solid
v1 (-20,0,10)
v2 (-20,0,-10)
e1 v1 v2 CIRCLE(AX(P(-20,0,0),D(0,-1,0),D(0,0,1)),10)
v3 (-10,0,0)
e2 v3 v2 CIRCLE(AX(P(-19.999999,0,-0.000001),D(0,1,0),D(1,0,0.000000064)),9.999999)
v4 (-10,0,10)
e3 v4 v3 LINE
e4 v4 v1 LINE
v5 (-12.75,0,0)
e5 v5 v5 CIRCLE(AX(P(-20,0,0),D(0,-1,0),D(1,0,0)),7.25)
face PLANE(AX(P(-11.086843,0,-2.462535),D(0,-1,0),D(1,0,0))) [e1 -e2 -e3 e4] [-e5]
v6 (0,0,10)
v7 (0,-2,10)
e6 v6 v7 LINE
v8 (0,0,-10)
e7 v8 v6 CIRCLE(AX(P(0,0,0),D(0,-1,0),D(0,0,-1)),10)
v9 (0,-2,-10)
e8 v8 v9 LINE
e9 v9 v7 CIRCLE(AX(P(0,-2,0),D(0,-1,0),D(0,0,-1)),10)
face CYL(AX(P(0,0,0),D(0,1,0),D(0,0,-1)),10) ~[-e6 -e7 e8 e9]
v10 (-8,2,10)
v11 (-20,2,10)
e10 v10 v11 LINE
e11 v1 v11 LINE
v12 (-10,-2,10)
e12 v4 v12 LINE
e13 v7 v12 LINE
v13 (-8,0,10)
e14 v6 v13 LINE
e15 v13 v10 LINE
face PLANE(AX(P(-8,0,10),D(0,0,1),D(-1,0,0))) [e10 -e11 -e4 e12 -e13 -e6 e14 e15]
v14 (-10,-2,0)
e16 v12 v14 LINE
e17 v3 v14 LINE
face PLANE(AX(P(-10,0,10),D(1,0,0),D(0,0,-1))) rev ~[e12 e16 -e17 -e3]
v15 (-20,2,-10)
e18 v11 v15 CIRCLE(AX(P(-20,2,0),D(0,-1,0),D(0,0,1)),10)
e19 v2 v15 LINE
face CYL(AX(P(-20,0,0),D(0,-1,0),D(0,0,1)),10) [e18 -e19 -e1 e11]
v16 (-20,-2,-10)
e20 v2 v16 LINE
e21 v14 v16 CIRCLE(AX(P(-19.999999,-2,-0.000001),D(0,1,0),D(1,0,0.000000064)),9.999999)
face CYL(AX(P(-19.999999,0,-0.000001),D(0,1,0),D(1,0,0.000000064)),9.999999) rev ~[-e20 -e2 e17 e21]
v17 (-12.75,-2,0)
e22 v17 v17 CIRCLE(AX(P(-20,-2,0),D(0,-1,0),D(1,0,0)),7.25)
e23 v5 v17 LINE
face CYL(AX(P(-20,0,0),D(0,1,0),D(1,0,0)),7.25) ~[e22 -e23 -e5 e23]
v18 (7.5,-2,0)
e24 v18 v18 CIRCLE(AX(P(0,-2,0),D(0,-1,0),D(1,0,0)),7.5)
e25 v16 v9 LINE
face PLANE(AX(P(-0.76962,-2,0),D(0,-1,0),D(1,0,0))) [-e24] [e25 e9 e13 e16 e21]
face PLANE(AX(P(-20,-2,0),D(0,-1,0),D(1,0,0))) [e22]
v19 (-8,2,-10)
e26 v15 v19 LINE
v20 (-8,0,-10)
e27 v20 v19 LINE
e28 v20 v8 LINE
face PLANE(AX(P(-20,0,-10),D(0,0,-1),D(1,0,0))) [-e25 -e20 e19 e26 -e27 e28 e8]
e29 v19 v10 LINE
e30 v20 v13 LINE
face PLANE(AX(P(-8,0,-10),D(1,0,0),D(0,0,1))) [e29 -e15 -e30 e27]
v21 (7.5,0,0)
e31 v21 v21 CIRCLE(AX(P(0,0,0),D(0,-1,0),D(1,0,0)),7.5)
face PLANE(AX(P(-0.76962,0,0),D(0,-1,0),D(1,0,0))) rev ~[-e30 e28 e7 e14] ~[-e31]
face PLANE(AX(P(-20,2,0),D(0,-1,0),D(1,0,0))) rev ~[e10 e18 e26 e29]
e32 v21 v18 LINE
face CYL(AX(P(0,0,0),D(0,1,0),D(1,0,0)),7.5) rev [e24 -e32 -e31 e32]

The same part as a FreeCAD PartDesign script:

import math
import FreeCAD as App
import Part
import Sketcher

doc = App.newDocument("Part")
params = doc.addObject("Spreadsheet::Sheet", "Params")
for row, (alias, value) in enumerate([
    ("sketch1_diameter", "15 mm"),
    ("sketch1_radius", "9.999999 mm"),
    ("pad1_length", "2 mm"),
    ("sketch2_radius", "10 mm"),
    ("sketch2_diameter", "14.5 mm"),
    ("sketch2_width", "12 mm"),
    ("pad2_length", "2 mm"),
    ("sketch3_diameter", "14.5 mm"),
    ("pad3_length", "2 mm"),
    ("pad3_length2", "2 mm"),
], start=1):
    params.set(f"A{row}", alias)
    params.set(f"B{row}", "=" + value)
    params.setAlias(f"B{row}", alias)

body = doc.addObject("PartDesign::Body", "Body")

sketch1 = body.newObject("Sketcher::SketchObject", "Sketch")
sketch1.AttachmentSupport = (doc.getObject("XZ_Plane"), [""])
sketch1.MapMode = "FlatFace"
sketch1.addGeometry(Part.LineSegment(App.Vector(0, 10, 0), App.Vector(-10, 10, 0)), False)
sketch1.addGeometry(Part.LineSegment(App.Vector(-10, 10, 0), App.Vector(-10, 0, 0)), False)
sketch1.addGeometry(Part.ArcOfCircle(Part.Circle(App.Vector(-19.999999, -0.000001, 0), App.Vector(0, 0, 1), 9.999999), math.radians(-90.000004), math.radians(0.000004)), False)
sketch1.addGeometry(Part.LineSegment(App.Vector(-20, -10, 0), App.Vector(0, -10, 0)), False)
sketch1.addGeometry(Part.ArcOfCircle(Part.Circle(App.Vector(0, 0, 0), App.Vector(0, 0, 1), 10), math.radians(-90), math.radians(90)), False)
sketch1.addGeometry(Part.Circle(App.Vector(0, 0, 0), App.Vector(0, 0, 1), 7.5), False)
sketch1.addConstraint(Sketcher.Constraint("Coincident", 0, 2, 1, 1))
sketch1.addConstraint(Sketcher.Constraint("Tangent", 1, 2, 2, 2))
sketch1.addConstraint(Sketcher.Constraint("Tangent", 2, 1, 3, 1))
sketch1.addConstraint(Sketcher.Constraint("Tangent", 3, 2, 4, 1))
sketch1.addConstraint(Sketcher.Constraint("Tangent", 4, 2, 0, 1))
sketch1.addConstraint(Sketcher.Constraint("Horizontal", 0))
sketch1.addConstraint(Sketcher.Constraint("Vertical", 1))
sketch1.addConstraint(Sketcher.Constraint("Horizontal", 3))
sketch1.addConstraint(Sketcher.Constraint("Coincident", 4, 3, -1, 1))
sketch1.addConstraint(Sketcher.Constraint("Coincident", 5, 3, -1, 1))
sketch1.addConstraint(Sketcher.Constraint("Equal", 2, 4))
sketch1.addConstraint(Sketcher.Constraint("Equal", 0, 1))
sketch1.addConstraint(Sketcher.Constraint("Diameter", 5, 15.0))
sketch1.addConstraint(Sketcher.Constraint("Radius", 2, 9.999999))
sketch1.setExpression("Constraints[12]", "Params.sketch1_diameter")
sketch1.setExpression("Constraints[13]", "Params.sketch1_radius")
pad1 = body.newObject("PartDesign::Pad", "Pad")
pad1.Profile = sketch1
pad1.setExpression("Length", "Params.pad1_length")

sketch2 = body.newObject("Sketcher::SketchObject", "Sketch001")
sketch2.AttachmentSupport = (doc.getObject("XZ_Plane"), [""])
sketch2.MapMode = "FlatFace"
sketch2.addGeometry(Part.LineSegment(App.Vector(-20, -10, 0), App.Vector(-8, -10, 0)), False)
sketch2.addGeometry(Part.LineSegment(App.Vector(-8, -10, 0), App.Vector(-8, 10, 0)), False)
sketch2.addGeometry(Part.LineSegment(App.Vector(-8, 10, 0), App.Vector(-20, 10, 0)), False)
sketch2.addGeometry(Part.ArcOfCircle(Part.Circle(App.Vector(-20, 0, 0), App.Vector(0, 0, 1), 10), math.radians(90), math.radians(270)), False)
sketch2.addGeometry(Part.Circle(App.Vector(-20, 0, 0), App.Vector(0, 0, 1), 7.25), False)
sketch2.addConstraint(Sketcher.Constraint("Coincident", 0, 2, 1, 1))
sketch2.addConstraint(Sketcher.Constraint("Coincident", 1, 2, 2, 1))
sketch2.addConstraint(Sketcher.Constraint("Tangent", 2, 2, 3, 1))
sketch2.addConstraint(Sketcher.Constraint("Tangent", 3, 2, 0, 1))
sketch2.addConstraint(Sketcher.Constraint("Horizontal", 0))
sketch2.addConstraint(Sketcher.Constraint("Vertical", 1))
sketch2.addConstraint(Sketcher.Constraint("Horizontal", 2))
sketch2.addConstraint(Sketcher.Constraint("Coincident", 4, 3, 3, 3))
sketch2.addConstraint(Sketcher.Constraint("PointOnObject", 3, 3, -1))
sketch2.addConstraint(Sketcher.Constraint("Radius", 3, 10.0))
sketch2.addConstraint(Sketcher.Constraint("Diameter", 4, 14.5))
sketch2.addConstraint(Sketcher.Constraint("DistanceX", 0, 1, 0, 2, 12.0))
sketch2.addConstraint(Sketcher.Constraint("DistanceX", 3, 3, -1, 1, 20.0))
sketch2.setExpression("Constraints[9]", "Params.sketch2_radius")
sketch2.setExpression("Constraints[10]", "Params.sketch2_diameter")
sketch2.setExpression("Constraints[11]", "Params.sketch2_width")
pad2 = body.newObject("PartDesign::Pad", "Pad001")
pad2.Profile = sketch2
pad2.setExpression("Length", "Params.pad2_length")
pad2.Reversed = True

sketch3 = body.newObject("Sketcher::SketchObject", "Sketch002")
sketch3.AttachmentSupport = (doc.getObject("XZ_Plane"), [""])
sketch3.MapMode = "FlatFace"
sketch3.addGeometry(Part.Circle(App.Vector(-20, 0, 0), App.Vector(0, 0, 1), 7.25), False)
sketch3.addConstraint(Sketcher.Constraint("PointOnObject", 0, 3, -1))
sketch3.addConstraint(Sketcher.Constraint("Diameter", 0, 14.5))
sketch3.addConstraint(Sketcher.Constraint("DistanceX", 0, 3, -1, 1, 20.0))
sketch3.setExpression("Constraints[1]", "Params.sketch3_diameter")
pad3 = body.newObject("PartDesign::Pad", "Pad002")
pad3.Profile = sketch3
pad3.Type = "TwoLengths"
pad3.setExpression("Length", "Params.pad3_length")
pad3.setExpression("Length2", "Params.pad3_length2")

doc.recompute()
